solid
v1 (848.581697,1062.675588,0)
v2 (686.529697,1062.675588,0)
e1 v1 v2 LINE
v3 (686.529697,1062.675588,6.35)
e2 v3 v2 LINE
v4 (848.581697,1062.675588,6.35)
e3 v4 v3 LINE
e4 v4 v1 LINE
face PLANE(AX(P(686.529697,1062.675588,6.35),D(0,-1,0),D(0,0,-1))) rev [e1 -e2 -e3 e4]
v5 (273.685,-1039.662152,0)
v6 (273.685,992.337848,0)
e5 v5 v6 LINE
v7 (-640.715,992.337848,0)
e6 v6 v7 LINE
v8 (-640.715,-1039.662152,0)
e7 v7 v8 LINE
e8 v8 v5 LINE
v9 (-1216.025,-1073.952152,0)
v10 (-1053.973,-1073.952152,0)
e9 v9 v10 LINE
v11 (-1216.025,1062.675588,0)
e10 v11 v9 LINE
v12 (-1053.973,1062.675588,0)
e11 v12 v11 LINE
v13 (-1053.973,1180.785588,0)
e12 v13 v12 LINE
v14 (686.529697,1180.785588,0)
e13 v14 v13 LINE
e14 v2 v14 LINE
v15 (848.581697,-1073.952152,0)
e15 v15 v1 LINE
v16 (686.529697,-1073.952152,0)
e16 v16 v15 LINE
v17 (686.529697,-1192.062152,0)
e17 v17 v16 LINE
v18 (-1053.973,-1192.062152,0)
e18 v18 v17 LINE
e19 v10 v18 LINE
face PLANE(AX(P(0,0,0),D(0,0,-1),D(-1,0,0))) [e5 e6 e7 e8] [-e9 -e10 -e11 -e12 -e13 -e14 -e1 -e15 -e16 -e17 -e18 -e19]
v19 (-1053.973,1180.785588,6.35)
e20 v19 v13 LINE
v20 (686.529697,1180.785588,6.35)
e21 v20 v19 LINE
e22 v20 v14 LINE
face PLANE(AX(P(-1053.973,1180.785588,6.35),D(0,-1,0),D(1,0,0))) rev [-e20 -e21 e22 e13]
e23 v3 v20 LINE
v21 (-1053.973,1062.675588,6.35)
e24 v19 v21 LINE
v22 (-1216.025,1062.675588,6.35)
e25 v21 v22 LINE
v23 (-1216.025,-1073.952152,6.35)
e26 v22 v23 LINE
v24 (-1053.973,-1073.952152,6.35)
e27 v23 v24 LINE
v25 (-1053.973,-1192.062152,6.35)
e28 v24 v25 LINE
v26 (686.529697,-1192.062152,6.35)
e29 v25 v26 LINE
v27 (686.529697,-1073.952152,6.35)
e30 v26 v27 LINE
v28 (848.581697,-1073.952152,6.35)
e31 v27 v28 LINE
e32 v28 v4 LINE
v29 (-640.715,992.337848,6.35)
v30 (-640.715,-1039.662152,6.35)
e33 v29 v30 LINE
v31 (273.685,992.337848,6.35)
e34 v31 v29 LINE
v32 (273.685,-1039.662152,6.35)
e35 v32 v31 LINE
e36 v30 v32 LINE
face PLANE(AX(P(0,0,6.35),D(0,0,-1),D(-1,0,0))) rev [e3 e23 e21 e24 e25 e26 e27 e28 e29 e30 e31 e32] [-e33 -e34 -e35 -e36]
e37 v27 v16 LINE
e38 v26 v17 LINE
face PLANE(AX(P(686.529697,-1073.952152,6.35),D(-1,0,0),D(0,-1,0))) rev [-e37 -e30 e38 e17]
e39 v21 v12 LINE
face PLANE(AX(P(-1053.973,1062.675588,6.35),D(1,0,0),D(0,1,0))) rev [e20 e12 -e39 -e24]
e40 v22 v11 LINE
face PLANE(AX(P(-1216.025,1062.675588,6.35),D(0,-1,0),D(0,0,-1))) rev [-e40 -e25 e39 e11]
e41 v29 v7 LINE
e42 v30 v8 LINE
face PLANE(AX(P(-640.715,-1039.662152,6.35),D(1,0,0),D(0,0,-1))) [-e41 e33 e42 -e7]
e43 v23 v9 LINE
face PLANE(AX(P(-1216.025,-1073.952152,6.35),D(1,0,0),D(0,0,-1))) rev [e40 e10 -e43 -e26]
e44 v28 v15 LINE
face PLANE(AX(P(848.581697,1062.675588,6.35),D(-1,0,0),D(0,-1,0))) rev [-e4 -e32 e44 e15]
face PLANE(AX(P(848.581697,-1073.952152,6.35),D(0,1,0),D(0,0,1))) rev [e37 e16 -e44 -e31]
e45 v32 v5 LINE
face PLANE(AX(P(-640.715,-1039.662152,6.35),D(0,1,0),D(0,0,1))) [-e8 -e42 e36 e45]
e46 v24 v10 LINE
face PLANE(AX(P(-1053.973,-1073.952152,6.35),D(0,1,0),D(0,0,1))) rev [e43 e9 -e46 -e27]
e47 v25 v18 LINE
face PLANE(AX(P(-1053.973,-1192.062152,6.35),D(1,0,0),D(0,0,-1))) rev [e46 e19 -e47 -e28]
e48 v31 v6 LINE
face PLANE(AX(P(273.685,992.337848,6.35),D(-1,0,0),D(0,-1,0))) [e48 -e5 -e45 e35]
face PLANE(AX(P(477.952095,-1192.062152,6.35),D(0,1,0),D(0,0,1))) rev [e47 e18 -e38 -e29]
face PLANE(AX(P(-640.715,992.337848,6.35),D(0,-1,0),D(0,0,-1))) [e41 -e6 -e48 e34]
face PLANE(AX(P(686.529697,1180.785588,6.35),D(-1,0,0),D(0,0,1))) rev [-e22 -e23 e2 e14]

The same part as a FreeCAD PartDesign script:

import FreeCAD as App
import Part
import Sketcher
Q = App.Units.Quantity

doc = App.newDocument("Part")
body = doc.addObject("PartDesign::Body", "Body")

# Sketch on XY plane
sketch1 = body.newObject("Sketcher::SketchObject", "Sketch")
sketch1.AttachmentSupport = (doc.getObject("XY_Plane"), [""])
sketch1.MapMode = "FlatFace"
sketch1.addGeometry([
    Part.LineSegment(App.Vector(687, 1063, 0), App.Vector(687, 1181, 0)),  # 0
    Part.LineSegment(App.Vector(687, 1181, 0), App.Vector(-1054, 1181, 0)),  # 1
    Part.LineSegment(App.Vector(-1054, 1181, 0), App.Vector(-1054, 1063, 0)),  # 2
    Part.LineSegment(App.Vector(-1054, 1063, 0), App.Vector(-1216, 1063, 0)),  # 3
    Part.LineSegment(App.Vector(-1216, 1063, 0), App.Vector(-1216, -1074, 0)),  # 4
    Part.LineSegment(App.Vector(-1216, -1074, 0), App.Vector(-1054, -1074, 0)),  # 5
    Part.LineSegment(App.Vector(-1054, -1074, 0), App.Vector(-1054, -1192, 0)),  # 6
    Part.LineSegment(App.Vector(-1054, -1192, 0), App.Vector(687, -1192, 0)),  # 7
    Part.LineSegment(App.Vector(687, -1192, 0), App.Vector(687, -1074, 0)),  # 8
    Part.LineSegment(App.Vector(687, -1074, 0), App.Vector(849, -1074, 0)),  # 9
    Part.LineSegment(App.Vector(849, -1074, 0), App.Vector(849, 1063, 0)),  # 10
    Part.LineSegment(App.Vector(849, 1063, 0), App.Vector(687, 1063, 0)),  # 11
    Part.LineSegment(App.Vector(-641, -1040, 0), App.Vector(-641, 992, 0)),  # 12
    Part.LineSegment(App.Vector(-641, 992, 0), App.Vector(274, 992, 0)),  # 13
    Part.LineSegment(App.Vector(274, 992, 0), App.Vector(274, -1040, 0)),  # 14
    Part.LineSegment(App.Vector(274, -1040, 0), App.Vector(-641, -1040, 0)),  # 15
], False)
sketch1.addConstraint([
    Sketcher.Constraint("Coincident", 0, 2, 1, 1),
    Sketcher.Constraint("Coincident", 1, 2, 2, 1),
    Sketcher.Constraint("Coincident", 2, 2, 3, 1),
    Sketcher.Constraint("Coincident", 3, 2, 4, 1),
    Sketcher.Constraint("Coincident", 4, 2, 5, 1),
    Sketcher.Constraint("Coincident", 5, 2, 6, 1),
    Sketcher.Constraint("Coincident", 6, 2, 7, 1),
    Sketcher.Constraint("Coincident", 7, 2, 8, 1),
    Sketcher.Constraint("Coincident", 8, 2, 9, 1),
    Sketcher.Constraint("Coincident", 9, 2, 10, 1),
    Sketcher.Constraint("Coincident", 10, 2, 11, 1),
    Sketcher.Constraint("Coincident", 11, 2, 0, 1),
    Sketcher.Constraint("Coincident", 12, 2, 13, 1),
    Sketcher.Constraint("Coincident", 13, 2, 14, 1),
    Sketcher.Constraint("Coincident", 14, 2, 15, 1),
    Sketcher.Constraint("Coincident", 15, 2, 12, 1),
    Sketcher.Constraint("Vertical", 0),
    Sketcher.Constraint("Horizontal", 1),
    Sketcher.Constraint("Vertical", 2),
    Sketcher.Constraint("Horizontal", 3),
    Sketcher.Constraint("Vertical", 4),
    Sketcher.Constraint("Horizontal", 5),
    Sketcher.Constraint("Vertical", 6),
    Sketcher.Constraint("Horizontal", 7),
    Sketcher.Constraint("Vertical", 8),
    Sketcher.Constraint("Horizontal", 9),
    Sketcher.Constraint("Vertical", 10),
    Sketcher.Constraint("Horizontal", 11),
    Sketcher.Constraint("Vertical", 12),
    Sketcher.Constraint("Horizontal", 13),
    Sketcher.Constraint("Vertical", 14),
    Sketcher.Constraint("Horizontal", 15),
    Sketcher.Constraint("Horizontal", 5, 2, 8, 2),
    Sketcher.Constraint("Horizontal", 3, 2, 10, 2),
    Sketcher.Constraint("Vertical", 2, 2, 5, 2),
    Sketcher.Constraint("Vertical", 0, 2, 7, 2),
    Sketcher.Constraint("Equal", 5, 9),
    Sketcher.Constraint("Equal", 2, 6),
    Sketcher.Constraint("DistanceX", 13, 1, 13, 2, Q("36 in")),
    Sketcher.Constraint("DistanceY", 12, 1, 12, 2, Q("80 in")),
    Sketcher.Constraint("DistanceY", 7, 2, 14, 2, Q("6 in")),
    Sketcher.Constraint("DistanceX", 3, 2, 3, 1, Q("6.38 in")),
    Sketcher.Constraint("DistanceY", 0, 1, 0, 2, Q("4.65 in")),
    Sketcher.Constraint("DistanceX", 2, 2, 12, 2, Q("16.27 in")),
    Sketcher.Constraint("DistanceX", 1, 2, -1, 1, Q("41.495 in")),
    Sketcher.Constraint("DistanceY", 4, 2, 4, 1, Q("2136.62774 mm")),
    Sketcher.Constraint("DistanceX", 1, 2, 1, 1, Q("1740.502697 mm")),
    Sketcher.Constraint("DistanceY", -1, 1, 0, 2, Q("1180.785588 mm")),
])
pad1 = body.newObject("PartDesign::Pad", "Pad")
pad1.Profile = sketch1
pad1.Length = Q("0.25 in")

doc.recompute()
